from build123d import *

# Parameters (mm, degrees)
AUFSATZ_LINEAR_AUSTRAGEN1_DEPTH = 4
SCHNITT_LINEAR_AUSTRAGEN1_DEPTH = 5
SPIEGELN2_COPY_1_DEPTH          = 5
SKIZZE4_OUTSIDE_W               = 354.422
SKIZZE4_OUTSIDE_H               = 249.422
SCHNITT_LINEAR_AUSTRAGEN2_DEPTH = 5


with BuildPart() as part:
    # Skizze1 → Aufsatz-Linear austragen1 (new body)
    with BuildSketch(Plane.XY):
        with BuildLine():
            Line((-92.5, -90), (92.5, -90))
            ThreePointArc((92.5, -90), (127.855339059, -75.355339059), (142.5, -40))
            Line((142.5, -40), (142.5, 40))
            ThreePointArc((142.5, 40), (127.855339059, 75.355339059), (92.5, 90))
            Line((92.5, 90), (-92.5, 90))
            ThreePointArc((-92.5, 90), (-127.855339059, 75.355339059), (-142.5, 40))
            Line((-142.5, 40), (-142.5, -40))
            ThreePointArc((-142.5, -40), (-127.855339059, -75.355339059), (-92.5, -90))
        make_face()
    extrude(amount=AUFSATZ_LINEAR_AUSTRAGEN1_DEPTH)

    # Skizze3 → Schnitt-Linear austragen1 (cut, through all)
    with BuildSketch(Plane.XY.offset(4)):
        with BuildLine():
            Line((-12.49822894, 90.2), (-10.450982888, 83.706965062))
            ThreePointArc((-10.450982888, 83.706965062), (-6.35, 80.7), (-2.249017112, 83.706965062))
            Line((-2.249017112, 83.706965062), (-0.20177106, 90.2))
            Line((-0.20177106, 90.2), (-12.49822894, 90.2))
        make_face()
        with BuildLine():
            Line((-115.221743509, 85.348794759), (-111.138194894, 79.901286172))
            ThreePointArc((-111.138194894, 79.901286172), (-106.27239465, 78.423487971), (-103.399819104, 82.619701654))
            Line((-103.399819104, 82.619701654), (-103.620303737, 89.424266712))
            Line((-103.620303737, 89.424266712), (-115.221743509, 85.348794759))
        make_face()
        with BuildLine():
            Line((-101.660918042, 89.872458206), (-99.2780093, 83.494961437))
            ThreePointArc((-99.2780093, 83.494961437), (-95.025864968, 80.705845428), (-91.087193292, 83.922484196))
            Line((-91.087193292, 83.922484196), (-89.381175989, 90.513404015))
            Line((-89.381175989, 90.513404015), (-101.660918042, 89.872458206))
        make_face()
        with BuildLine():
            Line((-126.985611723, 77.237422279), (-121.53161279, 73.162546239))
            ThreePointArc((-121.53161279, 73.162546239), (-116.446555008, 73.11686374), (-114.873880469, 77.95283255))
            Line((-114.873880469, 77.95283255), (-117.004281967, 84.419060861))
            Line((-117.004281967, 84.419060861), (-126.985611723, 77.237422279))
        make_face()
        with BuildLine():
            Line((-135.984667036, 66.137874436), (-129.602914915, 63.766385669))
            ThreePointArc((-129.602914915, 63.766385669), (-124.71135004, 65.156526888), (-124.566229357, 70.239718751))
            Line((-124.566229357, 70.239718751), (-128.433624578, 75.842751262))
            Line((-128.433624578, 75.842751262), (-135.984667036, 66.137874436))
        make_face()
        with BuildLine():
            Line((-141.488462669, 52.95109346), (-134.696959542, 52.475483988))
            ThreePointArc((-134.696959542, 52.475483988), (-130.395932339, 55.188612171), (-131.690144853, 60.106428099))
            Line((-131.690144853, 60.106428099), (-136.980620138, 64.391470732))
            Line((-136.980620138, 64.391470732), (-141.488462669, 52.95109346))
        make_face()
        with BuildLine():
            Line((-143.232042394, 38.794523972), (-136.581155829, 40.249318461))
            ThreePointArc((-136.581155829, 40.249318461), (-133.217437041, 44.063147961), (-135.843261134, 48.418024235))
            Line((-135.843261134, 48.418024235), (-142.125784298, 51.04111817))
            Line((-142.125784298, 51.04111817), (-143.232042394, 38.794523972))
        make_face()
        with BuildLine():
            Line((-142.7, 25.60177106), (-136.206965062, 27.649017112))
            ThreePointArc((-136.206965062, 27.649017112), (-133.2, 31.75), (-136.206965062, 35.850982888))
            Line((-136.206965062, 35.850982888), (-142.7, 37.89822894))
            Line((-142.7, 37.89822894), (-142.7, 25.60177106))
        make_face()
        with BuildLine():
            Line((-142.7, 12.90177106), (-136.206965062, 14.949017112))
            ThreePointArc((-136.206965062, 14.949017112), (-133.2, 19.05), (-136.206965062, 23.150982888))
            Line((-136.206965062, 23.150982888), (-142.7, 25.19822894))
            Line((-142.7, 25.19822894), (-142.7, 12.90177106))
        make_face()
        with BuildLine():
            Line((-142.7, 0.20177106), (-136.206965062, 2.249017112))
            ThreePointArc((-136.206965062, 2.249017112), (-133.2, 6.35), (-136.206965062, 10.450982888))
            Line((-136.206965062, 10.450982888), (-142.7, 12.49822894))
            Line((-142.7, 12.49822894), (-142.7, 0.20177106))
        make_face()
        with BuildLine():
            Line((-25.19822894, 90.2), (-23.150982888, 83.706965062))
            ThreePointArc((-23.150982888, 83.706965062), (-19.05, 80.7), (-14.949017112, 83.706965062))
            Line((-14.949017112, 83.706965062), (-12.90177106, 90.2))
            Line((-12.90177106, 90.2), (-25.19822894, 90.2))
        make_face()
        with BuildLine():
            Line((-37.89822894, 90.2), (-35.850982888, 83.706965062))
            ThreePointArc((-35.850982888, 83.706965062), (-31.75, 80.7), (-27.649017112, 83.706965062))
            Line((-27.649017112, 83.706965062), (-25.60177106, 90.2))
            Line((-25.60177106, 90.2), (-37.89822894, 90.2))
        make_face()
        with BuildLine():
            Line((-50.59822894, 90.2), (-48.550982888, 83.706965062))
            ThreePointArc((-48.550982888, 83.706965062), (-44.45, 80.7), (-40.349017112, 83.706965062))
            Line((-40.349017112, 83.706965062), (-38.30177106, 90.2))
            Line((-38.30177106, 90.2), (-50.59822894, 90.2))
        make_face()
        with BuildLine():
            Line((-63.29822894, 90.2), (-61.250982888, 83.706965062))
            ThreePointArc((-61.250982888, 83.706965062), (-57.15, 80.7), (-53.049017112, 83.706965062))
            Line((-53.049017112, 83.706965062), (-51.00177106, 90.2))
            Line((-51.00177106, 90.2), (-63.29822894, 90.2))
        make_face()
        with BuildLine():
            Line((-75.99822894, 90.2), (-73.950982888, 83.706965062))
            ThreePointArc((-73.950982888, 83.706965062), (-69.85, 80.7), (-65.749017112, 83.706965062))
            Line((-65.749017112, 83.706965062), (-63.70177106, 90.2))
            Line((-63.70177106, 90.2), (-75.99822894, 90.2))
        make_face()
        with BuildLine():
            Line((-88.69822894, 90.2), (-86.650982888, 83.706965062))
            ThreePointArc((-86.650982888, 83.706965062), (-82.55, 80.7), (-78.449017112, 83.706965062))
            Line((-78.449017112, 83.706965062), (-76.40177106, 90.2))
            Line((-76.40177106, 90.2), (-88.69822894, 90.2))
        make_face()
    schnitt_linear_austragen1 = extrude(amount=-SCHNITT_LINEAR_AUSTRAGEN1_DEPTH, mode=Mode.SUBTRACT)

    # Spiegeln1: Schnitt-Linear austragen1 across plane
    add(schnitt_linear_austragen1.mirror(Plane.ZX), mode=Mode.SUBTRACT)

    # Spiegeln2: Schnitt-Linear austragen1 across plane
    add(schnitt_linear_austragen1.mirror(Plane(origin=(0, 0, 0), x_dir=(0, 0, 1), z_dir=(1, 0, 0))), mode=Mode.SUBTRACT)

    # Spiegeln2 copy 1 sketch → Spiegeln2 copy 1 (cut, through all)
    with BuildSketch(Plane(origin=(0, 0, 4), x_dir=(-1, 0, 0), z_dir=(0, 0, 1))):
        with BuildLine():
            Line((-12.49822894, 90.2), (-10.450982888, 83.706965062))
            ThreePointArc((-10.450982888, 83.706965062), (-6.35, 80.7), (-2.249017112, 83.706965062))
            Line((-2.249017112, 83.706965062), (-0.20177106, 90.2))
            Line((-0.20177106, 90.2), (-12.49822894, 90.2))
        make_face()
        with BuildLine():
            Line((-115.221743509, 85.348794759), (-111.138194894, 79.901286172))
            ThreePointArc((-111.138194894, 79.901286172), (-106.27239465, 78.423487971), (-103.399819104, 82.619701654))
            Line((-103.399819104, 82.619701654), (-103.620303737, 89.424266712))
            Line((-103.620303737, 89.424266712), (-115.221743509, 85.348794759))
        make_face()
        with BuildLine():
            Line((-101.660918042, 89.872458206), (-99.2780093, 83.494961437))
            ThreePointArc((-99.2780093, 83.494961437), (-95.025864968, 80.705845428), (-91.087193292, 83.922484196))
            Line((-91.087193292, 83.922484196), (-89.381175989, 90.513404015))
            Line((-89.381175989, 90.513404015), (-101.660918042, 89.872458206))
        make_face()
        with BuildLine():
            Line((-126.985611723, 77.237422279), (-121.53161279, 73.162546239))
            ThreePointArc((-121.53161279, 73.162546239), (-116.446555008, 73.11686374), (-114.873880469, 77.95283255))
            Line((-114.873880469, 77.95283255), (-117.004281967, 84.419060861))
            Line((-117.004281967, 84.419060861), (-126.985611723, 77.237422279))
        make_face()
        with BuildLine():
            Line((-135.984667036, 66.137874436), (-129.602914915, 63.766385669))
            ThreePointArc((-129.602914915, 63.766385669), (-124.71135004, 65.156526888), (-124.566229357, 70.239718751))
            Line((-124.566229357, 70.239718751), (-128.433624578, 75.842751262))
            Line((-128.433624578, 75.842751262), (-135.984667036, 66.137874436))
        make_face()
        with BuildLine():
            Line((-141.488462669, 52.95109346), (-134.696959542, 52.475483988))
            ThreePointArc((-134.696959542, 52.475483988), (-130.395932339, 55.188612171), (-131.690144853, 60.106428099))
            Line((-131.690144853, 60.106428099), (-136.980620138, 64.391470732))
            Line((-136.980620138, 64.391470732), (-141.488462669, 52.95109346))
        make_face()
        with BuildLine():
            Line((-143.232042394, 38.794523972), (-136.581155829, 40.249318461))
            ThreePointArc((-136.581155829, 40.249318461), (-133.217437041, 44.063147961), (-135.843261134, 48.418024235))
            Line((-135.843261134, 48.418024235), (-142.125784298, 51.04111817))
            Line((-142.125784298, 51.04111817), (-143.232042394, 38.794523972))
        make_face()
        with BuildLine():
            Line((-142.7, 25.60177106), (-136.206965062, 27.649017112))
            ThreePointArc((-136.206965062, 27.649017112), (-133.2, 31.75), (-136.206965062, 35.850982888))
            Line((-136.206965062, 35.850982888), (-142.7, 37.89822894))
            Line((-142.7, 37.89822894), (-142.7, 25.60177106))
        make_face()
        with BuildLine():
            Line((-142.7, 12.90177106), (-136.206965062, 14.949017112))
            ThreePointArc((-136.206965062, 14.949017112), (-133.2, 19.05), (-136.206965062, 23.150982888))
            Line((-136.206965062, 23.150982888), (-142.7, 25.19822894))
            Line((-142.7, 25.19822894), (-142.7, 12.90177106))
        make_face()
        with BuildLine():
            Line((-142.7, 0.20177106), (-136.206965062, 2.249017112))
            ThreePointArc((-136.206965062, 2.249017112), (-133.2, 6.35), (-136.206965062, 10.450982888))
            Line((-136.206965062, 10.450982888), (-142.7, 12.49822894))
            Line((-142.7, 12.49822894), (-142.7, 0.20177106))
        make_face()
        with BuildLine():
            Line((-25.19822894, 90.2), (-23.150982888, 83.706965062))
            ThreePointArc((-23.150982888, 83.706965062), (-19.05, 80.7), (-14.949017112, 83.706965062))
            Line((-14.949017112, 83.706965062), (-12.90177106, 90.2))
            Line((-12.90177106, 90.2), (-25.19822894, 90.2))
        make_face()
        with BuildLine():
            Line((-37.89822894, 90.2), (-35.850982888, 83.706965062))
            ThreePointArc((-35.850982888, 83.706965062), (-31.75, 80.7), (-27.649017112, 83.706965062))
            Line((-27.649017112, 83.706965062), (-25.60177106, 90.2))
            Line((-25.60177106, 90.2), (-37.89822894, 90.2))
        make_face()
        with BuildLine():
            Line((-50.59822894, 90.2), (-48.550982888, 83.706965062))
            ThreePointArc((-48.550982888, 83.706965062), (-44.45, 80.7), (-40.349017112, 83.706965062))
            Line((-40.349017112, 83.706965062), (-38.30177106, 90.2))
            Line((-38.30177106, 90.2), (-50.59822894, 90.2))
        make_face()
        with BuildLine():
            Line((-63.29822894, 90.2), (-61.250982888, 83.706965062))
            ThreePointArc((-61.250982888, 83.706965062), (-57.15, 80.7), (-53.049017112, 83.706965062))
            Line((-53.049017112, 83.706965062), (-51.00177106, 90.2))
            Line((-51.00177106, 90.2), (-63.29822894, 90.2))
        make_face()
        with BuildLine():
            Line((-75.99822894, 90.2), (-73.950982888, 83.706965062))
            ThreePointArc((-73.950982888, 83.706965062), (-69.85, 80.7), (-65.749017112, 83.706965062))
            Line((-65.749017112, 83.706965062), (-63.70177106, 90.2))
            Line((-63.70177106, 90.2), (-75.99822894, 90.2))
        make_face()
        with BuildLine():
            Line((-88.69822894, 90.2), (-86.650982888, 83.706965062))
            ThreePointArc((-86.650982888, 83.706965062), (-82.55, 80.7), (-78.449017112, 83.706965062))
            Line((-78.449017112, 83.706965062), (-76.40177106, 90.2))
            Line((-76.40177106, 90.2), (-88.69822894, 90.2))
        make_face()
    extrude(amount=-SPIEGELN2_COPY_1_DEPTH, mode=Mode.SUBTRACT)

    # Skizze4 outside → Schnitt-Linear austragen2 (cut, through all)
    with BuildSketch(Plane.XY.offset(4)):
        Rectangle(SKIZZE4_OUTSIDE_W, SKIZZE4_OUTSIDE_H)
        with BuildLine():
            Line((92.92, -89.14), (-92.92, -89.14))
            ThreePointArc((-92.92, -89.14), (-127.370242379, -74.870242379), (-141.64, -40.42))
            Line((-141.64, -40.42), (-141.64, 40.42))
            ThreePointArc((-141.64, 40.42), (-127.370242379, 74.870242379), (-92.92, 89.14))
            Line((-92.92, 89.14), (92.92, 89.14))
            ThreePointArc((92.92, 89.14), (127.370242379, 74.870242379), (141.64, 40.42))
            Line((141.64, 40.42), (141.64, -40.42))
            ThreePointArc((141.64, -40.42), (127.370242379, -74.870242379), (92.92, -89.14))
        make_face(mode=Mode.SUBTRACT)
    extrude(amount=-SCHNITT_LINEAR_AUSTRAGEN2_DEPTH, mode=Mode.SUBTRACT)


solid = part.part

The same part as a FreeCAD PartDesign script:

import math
import FreeCAD as App
import Part
import Sketcher

V = App.Vector
Q = App.Units.Quantity

doc = App.newDocument("Part")
body = doc.addObject("PartDesign::Body", "Body")

# Sketch on XY plane
sketch1 = doc.addObject("Sketcher::SketchObject", "Sketch")
body.addObject(sketch1)
sketch1.AttachmentSupport = (doc.XY_Plane, [""])
sketch1.MapMode = "FlatFace"
sketch1.addGeometry([
    Part.LineSegment(V(-92, -90, 0), V(92, -90, 0)),  # 0
    Part.ArcOfCircle(Part.Circle(V(92, -40, 0), V(0, 0, 1), 50), math.radians(-90), math.radians(0)),  # 1
    Part.LineSegment(V(142, -40, 0), V(142, 40, 0)),  # 2
    Part.ArcOfCircle(Part.Circle(V(92, 40, 0), V(0, 0, 1), 50), math.radians(0), math.radians(90)),  # 3
    Part.LineSegment(V(92, 90, 0), V(-92, 90, 0)),  # 4
    Part.ArcOfCircle(Part.Circle(V(-92, 40, 0), V(0, 0, 1), 50), math.radians(90), math.radians(180)),  # 5
    Part.LineSegment(V(-142, 40, 0), V(-142, -40, 0)),  # 6
    Part.ArcOfCircle(Part.Circle(V(-92, -40, 0), V(0, 0, 1), 50), math.radians(-180), math.radians(-90)),  # 7
], False)
sketch1.addConstraint([
    Sketcher.Constraint("Tangent", 0, 2, 1, 1),
    Sketcher.Constraint("Tangent", 1, 2, 2, 1),
    Sketcher.Constraint("Tangent", 2, 2, 3, 1),
    Sketcher.Constraint("Tangent", 3, 2, 4, 1),
    Sketcher.Constraint("Tangent", 4, 2, 5, 1),
    Sketcher.Constraint("Tangent", 5, 2, 6, 1),
    Sketcher.Constraint("Tangent", 6, 2, 7, 1),
    Sketcher.Constraint("Tangent", 7, 2, 0, 1),
    Sketcher.Constraint("Horizontal", 0),
    Sketcher.Constraint("Vertical", 2),
    Sketcher.Constraint("Horizontal", 4),
    Sketcher.Constraint("Vertical", 6),
    Sketcher.Constraint("Equal", 1, 3),
    Sketcher.Constraint("Equal", 3, 5),
    Sketcher.Constraint("Equal", 5, 7),
    Sketcher.Constraint("Symmetric", 1, 3, 5, 3, -1, 1),
    Sketcher.Constraint("Radius", 1, Q("50 mm")),
    Sketcher.Constraint("DistanceX", 0, 1, 0, 2, Q("185 mm")),
    Sketcher.Constraint("DistanceY", 2, 1, 2, 2, Q("80 mm")),
])
pad1 = doc.addObject("PartDesign::Pad", "Pad")
body.addObject(pad1)
pad1.Profile = sketch1
pad1.Length = 4

# Sketch on XY plane
sketch2 = doc.addObject("Sketcher::SketchObject", "Sketch001")
body.addObject(sketch2)
sketch2.AttachmentSupport = (doc.XY_Plane, [""])
sketch2.MapMode = "FlatFace"
sketch2.AttachmentOffset = App.Placement(V(0, 0, 4), App.Rotation())
sketch2.addGeometry([
    Part.LineSegment(V(-12.498229, 90.2, 0), V(-10.450983, 83.706965, 0)),  # 0
    Part.ArcOfCircle(Part.Circle(V(-6.35, 85, 0), V(0, 0, 1), 4.3), math.radians(-162.5), math.radians(-17.5)),  # 1
    Part.LineSegment(V(-2.249017, 83.706965, 0), V(-0.201771, 90.2, 0)),  # 2
    Part.LineSegment(V(-0.201771, 90.2, 0), V(-12.498229, 90.2, 0)),  # 3
    Part.LineSegment(V(-115.221744, 85.348795, 0), V(-111.138195, 79.901286, 0)),  # 4
    Part.ArcOfCircle(Part.Circle(V(-107.697564, 82.480444, 0), V(0, 0, 1), 4.3), math.radians(-143.144125), math.radians(1.855875)),  # 5
    Part.LineSegment(V(-103.399819, 82.619702, 0), V(-103.620304, 89.424267, 0)),  # 6
    Part.LineSegment(V(-103.620304, 89.424267, 0), V(-115.221744, 85.348795, 0)),  # 7
    Part.LineSegment(V(-101.660918, 89.872458, 0), V(-99.278009, 83.494961, 0)),  # 8
    Part.ArcOfCircle(Part.Circle(V(-95.25, 85, 0), V(0, 0, 1), 4.3), math.radians(-159.512136), math.radians(-14.512136)),  # 9
    Part.LineSegment(V(-91.087193, 83.922484, 0), V(-89.381176, 90.513404, 0)),  # 10
    Part.LineSegment(V(-89.381176, 90.513404, 0), V(-101.660918, 89.872458, 0)),  # 11
    Part.LineSegment(V(-126.985612, 77.237422, 0), V(-121.531613, 73.162546, 0)),  # 12
    Part.ArcOfCircle(Part.Circle(V(-118.957932, 76.607277, 0), V(0, 0, 1), 4.3), math.radians(-126.764713), math.radians(18.235287)),  # 13
    Part.LineSegment(V(-114.87388, 77.952833, 0), V(-117.004282, 84.419061, 0)),  # 14
    Part.LineSegment(V(-117.004282, 84.419061, 0), V(-126.985612, 77.237422, 0)),  # 15
    Part.LineSegment(V(-135.984667, 66.137874, 0), V(-129.602915, 63.766386, 0)),  # 16
    Part.ArcOfCircle(Part.Circle(V(-128.105089, 67.797083, 0), V(0, 0, 1), 4.3), math.radians(-110.3853), math.radians(34.6147)),  # 17
    Part.LineSegment(V(-124.566229, 70.239719, 0), V(-128.433625, 75.842751, 0)),  # 18
    Part.LineSegment(V(-128.433625, 75.842751, 0), V(-135.984667, 66.137874, 0)),  # 19
    Part.LineSegment(V(-141.488463, 52.951093, 0), V(-134.69696, 52.475484, 0)),  # 20
    Part.ArcOfCircle(Part.Circle(V(-134.396566, 56.764979, 0), V(0, 0, 1), 4.3), math.radians(-94.005888), math.radians(50.994112)),  # 21
    Part.LineSegment(V(-131.690145, 60.106428, 0), V(-136.98062, 64.391471, 0)),  # 22
    Part.LineSegment(V(-136.98062, 64.391471, 0), V(-141.488463, 52.951093, 0)),  # 23
    Part.LineSegment(V(-143.232042, 38.794524, 0), V(-136.581156, 40.249318, 0)),  # 24
    Part.ArcOfCircle(Part.Circle(V(-137.5, 44.45, 0), V(0, 0, 1), 4.3), math.radians(-77.661628), math.radians(67.338372)),  # 25
    Part.LineSegment(V(-135.843261, 48.418024, 0), V(-142.125784, 51.041118, 0)),  # 26
    Part.LineSegment(V(-142.125784, 51.041118, 0), V(-143.232042, 38.794524, 0)),  # 27
    Part.LineSegment(V(-142.7, 25.601771, 0), V(-136.206965, 27.649017, 0)),  # 28
    Part.ArcOfCircle(Part.Circle(V(-137.5, 31.75, 0), V(0, 0, 1), 4.3), math.radians(-72.5), math.radians(72.5)),  # 29
    Part.LineSegment(V(-136.206965, 35.850983, 0), V(-142.7, 37.898229, 0)),  # 30
    Part.LineSegment(V(-142.7, 37.898229, 0), V(-142.7, 25.601771, 0)),  # 31
    Part.LineSegment(V(-142.7, 12.901771, 0), V(-136.206965, 14.949017, 0)),  # 32
    Part.ArcOfCircle(Part.Circle(V(-137.5, 19.05, 0), V(0, 0, 1), 4.3), math.radians(-72.5), math.radians(72.5)),  # 33
    Part.LineSegment(V(-136.206965, 23.150983, 0), V(-142.7, 25.198229, 0)),  # 34
    Part.LineSegment(V(-142.7, 25.198229, 0), V(-142.7, 12.901771, 0)),  # 35
    Part.LineSegment(V(-142.7, 0.201771, 0), V(-136.206965, 2.249017, 0)),  # 36
    Part.ArcOfCircle(Part.Circle(V(-137.5, 6.35, 0), V(0, 0, 1), 4.3), math.radians(-72.5), math.radians(72.5)),  # 37
    Part.LineSegment(V(-136.206965, 10.450983, 0), V(-142.7, 12.498229, 0)),  # 38
    Part.LineSegment(V(-142.7, 12.498229, 0), V(-142.7, 0.201771, 0)),  # 39
    Part.LineSegment(V(-25.198229, 90.2, 0), V(-23.150983, 83.706965, 0)),  # 40
    Part.ArcOfCircle(Part.Circle(V(-19.05, 85, 0), V(0, 0, 1), 4.3), math.radians(-162.5), math.radians(-17.5)),  # 41
    Part.LineSegment(V(-14.949017, 83.706965, 0), V(-12.901771, 90.2, 0)),  # 42
    Part.LineSegment(V(-12.901771, 90.2, 0), V(-25.198229, 90.2, 0)),  # 43
    Part.LineSegment(V(-37.898229, 90.2, 0), V(-35.850983, 83.706965, 0)),  # 44
    Part.ArcOfCircle(Part.Circle(V(-31.75, 85, 0), V(0, 0, 1), 4.3), math.radians(-162.5), math.radians(-17.5)),  # 45
    Part.LineSegment(V(-27.649017, 83.706965, 0), V(-25.601771, 90.2, 0)),  # 46
    Part.LineSegment(V(-25.601771, 90.2, 0), V(-37.898229, 90.2, 0)),  # 47
    Part.LineSegment(V(-50.598229, 90.2, 0), V(-48.550983, 83.706965, 0)),  # 48
    Part.ArcOfCircle(Part.Circle(V(-44.45, 85, 0), V(0, 0, 1), 4.3), math.radians(-162.5), math.radians(-17.5)),  # 49
    Part.LineSegment(V(-40.349017, 83.706965, 0), V(-38.301771, 90.2, 0)),  # 50
    Part.LineSegment(V(-38.301771, 90.2, 0), V(-50.598229, 90.2, 0)),  # 51
    Part.LineSegment(V(-63.298229, 90.2, 0), V(-61.250983, 83.706965, 0)),  # 52
    Part.ArcOfCircle(Part.Circle(V(-57.15, 85, 0), V(0, 0, 1), 4.3), math.radians(-162.5), math.radians(-17.5)),  # 53
    Part.LineSegment(V(-53.049017, 83.706965, 0), V(-51.001771, 90.2, 0)),  # 54
    Part.LineSegment(V(-51.001771, 90.2, 0), V(-63.298229, 90.2, 0)),  # 55
    Part.LineSegment(V(-75.998229, 90.2, 0), V(-73.950983, 83.706965, 0)),  # 56
    Part.ArcOfCircle(Part.Circle(V(-69.85, 85, 0), V(0, 0, 1), 4.3), math.radians(-162.5), math.radians(-17.5)),  # 57
    Part.LineSegment(V(-65.749017, 83.706965, 0), V(-63.701771, 90.2, 0)),  # 58
    Part.LineSegment(V(-63.701771, 90.2, 0), V(-75.998229, 90.2, 0)),  # 59
    Part.LineSegment(V(-88.698229, 90.2, 0), V(-86.650983, 83.706965, 0)),  # 60
    Part.ArcOfCircle(Part.Circle(V(-82.55, 85, 0), V(0, 0, 1), 4.3), math.radians(-162.5), math.radians(-17.5)),  # 61
    Part.LineSegment(V(-78.449017, 83.706965, 0), V(-76.401771, 90.2, 0)),  # 62
    Part.LineSegment(V(-76.401771, 90.2, 0), V(-88.698229, 90.2, 0)),  # 63
], False)
sketch2.addConstraint([
    Sketcher.Constraint("Coincident", 0, 2, 1, 1),
    Sketcher.Constraint("Coincident", 1, 2, 2, 1),
    Sketcher.Constraint("Coincident", 2, 2, 3, 1),
    Sketcher.Constraint("Coincident", 3, 2, 0, 1),
    Sketcher.Constraint("Coincident", 4, 2, 5, 1),
    Sketcher.Constraint("Coincident", 5, 2, 6, 1),
    Sketcher.Constraint("Coincident", 6, 2, 7, 1),
    Sketcher.Constraint("Coincident", 7, 2, 4, 1),
    Sketcher.Constraint("Coincident", 8, 2, 9, 1),
    Sketcher.Constraint("Coincident", 9, 2, 10, 1),
    Sketcher.Constraint("Coincident", 10, 2, 11, 1),
    Sketcher.Constraint("Coincident", 11, 2, 8, 1),
    Sketcher.Constraint("Coincident", 12, 2, 13, 1),
    Sketcher.Constraint("Coincident", 13, 2, 14, 1),
    Sketcher.Constraint("Coincident", 14, 2, 15, 1),
    Sketcher.Constraint("Coincident", 15, 2, 12, 1),
    Sketcher.Constraint("Coincident", 16, 2, 17, 1),
    Sketcher.Constraint("Coincident", 17, 2, 18, 1),
    Sketcher.Constraint("Coincident", 18, 2, 19, 1),
    Sketcher.Constraint("Coincident", 19, 2, 16, 1),
    Sketcher.Constraint("Coincident", 20, 2, 21, 1),
    Sketcher.Constraint("Coincident", 21, 2, 22, 1),
    Sketcher.Constraint("Coincident", 22, 2, 23, 1),
    Sketcher.Constraint("Coincident", 23, 2, 20, 1),
    Sketcher.Constraint("Coincident", 24, 2, 25, 1),
    Sketcher.Constraint("Coincident", 25, 2, 26, 1),
    Sketcher.Constraint("Coincident", 26, 2, 27, 1),
    Sketcher.Constraint("Coincident", 27, 2, 24, 1),
    Sketcher.Constraint("Coincident", 28, 2, 29, 1),
    Sketcher.Constraint("Coincident", 29, 2, 30, 1),
    Sketcher.Constraint("Coincident", 30, 2, 31, 1),
    Sketcher.Constraint("Coincident", 31, 2, 28, 1),
    Sketcher.Constraint("Coincident", 32, 2, 33, 1),
    Sketcher.Constraint("Coincident", 33, 2, 34, 1),
    Sketcher.Constraint("Coincident", 34, 2, 35, 1),
    Sketcher.Constraint("Coincident", 35, 2, 32, 1),
    Sketcher.Constraint("Coincident", 36, 2, 37, 1),
    Sketcher.Constraint("Coincident", 37, 2, 38, 1),
    Sketcher.Constraint("Coincident", 38, 2, 39, 1),
    Sketcher.Constraint("Coincident", 39, 2, 36, 1),
    Sketcher.Constraint("Coincident", 40, 2, 41, 1),
    Sketcher.Constraint("Coincident", 41, 2, 42, 1),
    Sketcher.Constraint("Coincident", 42, 2, 43, 1),
    Sketcher.Constraint("Coincident", 43, 2, 40, 1),
    Sketcher.Constraint("Coincident", 44, 2, 45, 1),
    Sketcher.Constraint("Coincident", 45, 2, 46, 1),
    Sketcher.Constraint("Coincident", 46, 2, 47, 1),
    Sketcher.Constraint("Coincident", 47, 2, 44, 1),
    Sketcher.Constraint("Coincident", 48, 2, 49, 1),
    Sketcher.Constraint("Coincident", 49, 2, 50, 1),
    Sketcher.Constraint("Coincident", 50, 2, 51, 1),
    Sketcher.Constraint("Coincident", 51, 2, 48, 1),
    Sketcher.Constraint("Coincident", 52, 2, 53, 1),
    Sketcher.Constraint("Coincident", 53, 2, 54, 1),
    Sketcher.Constraint("Coincident", 54, 2, 55, 1),
    Sketcher.Constraint("Coincident", 55, 2, 52, 1),
    Sketcher.Constraint("Coincident", 56, 2, 57, 1),
    Sketcher.Constraint("Coincident", 57, 2, 58, 1),
    Sketcher.Constraint("Coincident", 58, 2, 59, 1),
    Sketcher.Constraint("Coincident", 59, 2, 56, 1),
    Sketcher.Constraint("Coincident", 60, 2, 61, 1),
    Sketcher.Constraint("Coincident", 61, 2, 62, 1),
    Sketcher.Constraint("Coincident", 62, 2, 63, 1),
    Sketcher.Constraint("Coincident", 63, 2, 60, 1),
    Sketcher.Constraint("Horizontal", 3),
    Sketcher.Constraint("Vertical", 31),
    Sketcher.Constraint("Vertical", 35),
    Sketcher.Constraint("Vertical", 39),
    Sketcher.Constraint("Horizontal", 43),
    Sketcher.Constraint("Horizontal", 47),
    Sketcher.Constraint("Horizontal", 51),
    Sketcher.Constraint("Horizontal", 55),
    Sketcher.Constraint("Horizontal", 59),
    Sketcher.Constraint("Horizontal", 63),
    Sketcher.Constraint("Radius", 1, Q("4.3 mm")),
    Sketcher.Constraint("Radius", 5, Q("4.3 mm")),
    Sketcher.Constraint("Radius", 9, Q("4.3 mm")),
    Sketcher.Constraint("Radius", 13, Q("4.3 mm")),
    Sketcher.Constraint("Radius", 17, Q("4.3 mm")),
    Sketcher.Constraint("Radius", 21, Q("4.3 mm")),
    Sketcher.Constraint("Radius", 25, Q("4.3 mm")),
    Sketcher.Constraint("Radius", 29, Q("4.3 mm")),
    Sketcher.Constraint("Radius", 33, Q("4.3 mm")),
    Sketcher.Constraint("Radius", 37, Q("4.3 mm")),
    Sketcher.Constraint("Radius", 41, Q("4.3 mm")),
    Sketcher.Constraint("Radius", 45, Q("4.3 mm")),
    Sketcher.Constraint("Radius", 49, Q("4.3 mm")),
    Sketcher.Constraint("Radius", 53, Q("4.3 mm")),
    Sketcher.Constraint("Radius", 57, Q("4.3 mm")),
    Sketcher.Constraint("Radius", 61, Q("4.3 mm")),
    Sketcher.Constraint("DistanceY", -1, 1, 1, 3, Q("85 mm")),
    Sketcher.Constraint("DistanceY", -1, 1, 9, 3, Q("85 mm")),
    Sketcher.Constraint("DistanceY", -1, 1, 41, 3, Q("85 mm")),
    Sketcher.Constraint("DistanceY", -1, 1, 45, 3, Q("85 mm")),
    Sketcher.Constraint("DistanceY", -1, 1, 49, 3, Q("85 mm")),
    Sketcher.Constraint("DistanceY", -1, 1, 53, 3, Q("85 mm")),
    Sketcher.Constraint("DistanceY", -1, 1, 57, 3, Q("85 mm")),
    Sketcher.Constraint("DistanceY", -1, 1, 61, 3, Q("85 mm")),
    Sketcher.Constraint("DistanceX", 25, 3, -1, 1, Q("137.5 mm")),
    Sketcher.Constraint("DistanceX", 29, 3, -1, 1, Q("137.5 mm")),
    Sketcher.Constraint("DistanceX", 33, 3, -1, 1, Q("137.5 mm")),
    Sketcher.Constraint("DistanceX", 37, 3, -1, 1, Q("137.5 mm")),
    Sketcher.Constraint("DistanceY", -1, 1, 2, 2, Q("90.2 mm")),
    Sketcher.Constraint("DistanceX", 30, 2, -1, 1, Q("142.7 mm")),
    Sketcher.Constraint("DistanceX", 34, 2, -1, 1, Q("142.7 mm")),
    Sketcher.Constraint("DistanceX", 38, 2, -1, 1, Q("142.7 mm")),
    Sketcher.Constraint("DistanceY", -1, 1, 42, 2, Q("90.2 mm")),
    Sketcher.Constraint("DistanceY", -1, 1, 46, 2, Q("90.2 mm")),
    Sketcher.Constraint("DistanceY", -1, 1, 50, 2, Q("90.2 mm")),
    Sketcher.Constraint("DistanceY", -1, 1, 54, 2, Q("90.2 mm")),
    Sketcher.Constraint("DistanceY", -1, 1, 58, 2, Q("90.2 mm")),
    Sketcher.Constraint("DistanceY", -1, 1, 62, 2, Q("90.2 mm")),
    Sketcher.Constraint("DistanceX", 1, 3, -1, 1, Q("6.35 mm")),
    Sketcher.Constraint("DistanceX", 9, 3, -1, 1, Q("95.25 mm")),
    Sketcher.Constraint("DistanceY", -1, 1, 25, 3, Q("44.45 mm")),
    Sketcher.Constraint("DistanceY", -1, 1, 29, 3, Q("31.75 mm")),
    Sketcher.Constraint("DistanceY", -1, 1, 33, 3, Q("19.05 mm")),
    Sketcher.Constraint("DistanceY", -1, 1, 37, 3, Q("6.35 mm")),
    Sketcher.Constraint("DistanceX", 41, 3, -1, 1, Q("19.05 mm")),
    Sketcher.Constraint("DistanceX", 45, 3, -1, 1, Q("31.75 mm")),
    Sketcher.Constraint("DistanceX", 49, 3, -1, 1, Q("44.45 mm")),
    Sketcher.Constraint("DistanceX", 53, 3, -1, 1, Q("57.15 mm")),
    Sketcher.Constraint("DistanceX", 57, 3, -1, 1, Q("69.85 mm")),
    Sketcher.Constraint("DistanceX", 61, 3, -1, 1, Q("82.55 mm")),
    Sketcher.Constraint("DistanceY", -1, 1, 5, 2, Q("82.619702 mm")),
    Sketcher.Constraint("DistanceX", 3, 2, 3, 1, Q("12.296458 mm")),
    Sketcher.Constraint("DistanceX", 43, 2, 43, 1, Q("12.296458 mm")),
    Sketcher.Constraint("DistanceX", 47, 2, 47, 1, Q("12.296458 mm")),
    Sketcher.Constraint("DistanceX", 51, 2, 51, 1, Q("12.296458 mm")),
    Sketcher.Constraint("DistanceX", 55, 2, 55, 1, Q("12.296458 mm")),
    Sketcher.Constraint("DistanceX", 59, 2, 59, 1, Q("12.296458 mm")),
    Sketcher.Constraint("DistanceX", 63, 2, 63, 1, Q("12.296458 mm")),
    Sketcher.Constraint("DistanceY", 31, 2, 31, 1, Q("12.296458 mm")),
    Sketcher.Constraint("DistanceY", 35, 2, 35, 1, Q("12.296458 mm")),
    Sketcher.Constraint("DistanceY", 39, 2, 39, 1, Q("12.296458 mm")),
    Sketcher.Constraint("DistanceX", 17, 3, -1, 1, Q("128.105089 mm")),
    Sketcher.Constraint("DistanceY", -1, 1, 21, 3, Q("56.764979 mm")),
    Sketcher.Constraint("DistanceX", 2, 2, -1, 1, Q("0.201771 mm")),
    Sketcher.Constraint("DistanceX", 5, 2, -1, 1, Q("103.399819 mm")),
    Sketcher.Constraint("DistanceX", 8, 2, -1, 1, Q("99.278009 mm")),
    Sketcher.Constraint("DistanceX", 11, 2, -1, 1, Q("101.660918 mm")),
    Sketcher.Constraint("DistanceY", -1, 1, 11, 2, Q("89.872458 mm")),
    Sketcher.Constraint("DistanceX", 13, 2, -1, 1, Q("114.87388 mm")),
    Sketcher.Constraint("DistanceX", 14, 2, -1, 1, Q("117.004282 mm")),
    Sketcher.Constraint("DistanceY", -1, 1, 14, 2, Q("84.419061 mm")),
    Sketcher.Constraint("DistanceX", 15, 2, -1, 1, Q("126.985612 mm")),
    Sketcher.Constraint("DistanceX", 17, 2, -1, 1, Q("124.566229 mm")),
    Sketcher.Constraint("DistanceY", -1, 1, 17, 2, Q("70.239719 mm")),
    Sketcher.Constraint("DistanceY", -1, 1, 18, 2, Q("75.842751 mm")),
    Sketcher.Constraint("DistanceX", 20, 2, -1, 1, Q("134.69696 mm")),
    Sketcher.Constraint("DistanceY", -1, 1, 21, 2, Q("60.106428 mm")),
    Sketcher.Constraint("DistanceX", 22, 2, -1, 1, Q("136.98062 mm")),
    Sketcher.Constraint("DistanceY", -1, 1, 22, 2, Q("64.391471 mm")),
    Sketcher.Constraint("DistanceY", -1, 1, 24, 2, Q("40.249318 mm")),
    Sketcher.Constraint("DistanceX", 25, 2, -1, 1, Q("135.843261 mm")),
    Sketcher.Constraint("DistanceY", -1, 1, 26, 2, Q("51.041118 mm")),
    Sketcher.Constraint("DistanceY", -1, 1, 30, 2, Q("37.898229 mm")),
    Sketcher.Constraint("DistanceY", -1, 1, 34, 2, Q("25.198229 mm")),
    Sketcher.Constraint("DistanceY", -1, 1, 38, 2, Q("12.498229 mm")),
    Sketcher.Constraint("DistanceX", 42, 2, -1, 1, Q("12.901771 mm")),
    Sketcher.Constraint("DistanceX", 46, 2, -1, 1, Q("25.601771 mm")),
    Sketcher.Constraint("DistanceX", 50, 2, -1, 1, Q("38.301771 mm")),
    Sketcher.Constraint("DistanceX", 54, 2, -1, 1, Q("51.001771 mm")),
    Sketcher.Constraint("DistanceX", 58, 2, -1, 1, Q("63.701771 mm")),
    Sketcher.Constraint("DistanceX", 62, 2, -1, 1, Q("76.401771 mm")),
    Sketcher.Constraint("Distance", 0, Q("6.808136 mm")),
    Sketcher.Constraint("Distance", 2, Q("6.808136 mm")),
    Sketcher.Constraint("Distance", 4, Q("6.808136 mm")),
    Sketcher.Constraint("Distance", 6, Q("6.808136 mm")),
    Sketcher.Constraint("Distance", 7, Q("12.296458 mm")),
    Sketcher.Constraint("Distance", 10, Q("6.808136 mm")),
    Sketcher.Constraint("Distance", 11, Q("12.296458 mm")),
    Sketcher.Constraint("Distance", 12, Q("6.808136 mm")),
    Sketcher.Constraint("Distance", 14, Q("6.808136 mm")),
    Sketcher.Constraint("Distance", 15, Q("12.296458 mm")),
    Sketcher.Constraint("Distance", 16, Q("6.808136 mm")),
    Sketcher.Constraint("Distance", 18, Q("6.808136 mm")),
    Sketcher.Constraint("Distance", 19, Q("12.296458 mm")),
    Sketcher.Constraint("Distance", 20, Q("6.808136 mm")),
    Sketcher.Constraint("Distance", 22, Q("6.808136 mm")),
    Sketcher.Constraint("Distance", 23, Q("12.296458 mm")),
    Sketcher.Constraint("Distance", 24, Q("6.808136 mm")),
    Sketcher.Constraint("Distance", 26, Q("6.808136 mm")),
    Sketcher.Constraint("Distance", 27, Q("12.296458 mm")),
    Sketcher.Constraint("Distance", 28, Q("6.808136 mm")),
    Sketcher.Constraint("Distance", 30, Q("6.808136 mm")),
    Sketcher.Constraint("Distance", 32, Q("6.808136 mm")),
    Sketcher.Constraint("Distance", 34, Q("6.808136 mm")),
    Sketcher.Constraint("Distance", 36, Q("6.808136 mm")),
    Sketcher.Constraint("Distance", 38, Q("6.808136 mm")),
    Sketcher.Constraint("Distance", 40, Q("6.808136 mm")),
    Sketcher.Constraint("Distance", 42, Q("6.808136 mm")),
    Sketcher.Constraint("Distance", 44, Q("6.808136 mm")),
    Sketcher.Constraint("Distance", 46, Q("6.808136 mm")),
    Sketcher.Constraint("Distance", 48, Q("6.808136 mm")),
    Sketcher.Constraint("Distance", 50, Q("6.808136 mm")),
    Sketcher.Constraint("Distance", 52, Q("6.808136 mm")),
    Sketcher.Constraint("Distance", 54, Q("6.808136 mm")),
    Sketcher.Constraint("Distance", 56, Q("6.808136 mm")),
    Sketcher.Constraint("Distance", 58, Q("6.808136 mm")),
    Sketcher.Constraint("Distance", 60, Q("6.808136 mm")),
    Sketcher.Constraint("Distance", 62, Q("6.808136 mm")),
    Sketcher.Constraint("DistanceX", 5, 3, -1, 1, Q("107.697564 mm")),
    Sketcher.Constraint("DistanceX", 13, 3, -1, 1, Q("118.957932 mm")),
    Sketcher.Constraint("DistanceX", 4, 2, -1, 1, Q("111.138195 mm")),
    Sketcher.Constraint("DistanceX", 6, 2, -1, 1, Q("103.620304 mm")),
    Sketcher.Constraint("DistanceX", 9, 2, -1, 1, Q("91.087193 mm")),
    Sketcher.Constraint("DistanceX", 16, 2, -1, 1, Q("129.602915 mm")),
])
pocket1 = doc.addObject("PartDesign::Pocket", "Pocket")
body.addObject(pocket1)
pocket1.Profile = sketch2
pocket1.Type = "ThroughAll"
doc.recompute()

mirrored = doc.addObject("PartDesign::Mirrored", "Mirrored")
body.addObject(mirrored)
mirrored.Originals = [pocket1]
mirrored.MirrorPlane = (doc.XZ_Plane, [""])
body.Tip = mirrored
doc.recompute()

mirrored2 = doc.addObject("PartDesign::Mirrored", "Mirrored001")
body.addObject(mirrored2)
mirrored2.Originals = [pocket1]
mirrored2.MirrorPlane = (doc.YZ_Plane, [""])
body.Tip = mirrored2

# Sketch on XY plane
sketch3 = doc.addObject("Sketcher::SketchObject", "Sketch002")
body.addObject(sketch3)
sketch3.AttachmentSupport = (doc.XY_Plane, [""])
sketch3.MapMode = "FlatFace"
sketch3.AttachmentOffset = App.Placement(V(0, 0, 4), App.Rotation())
sketch3.addGeometry([
    Part.LineSegment(V(12.498229, -90.2, 0), V(10.450983, -83.706965, 0)),  # 0
    Part.ArcOfCircle(Part.Circle(V(6.35, -85, 0), V(0, 0, 1), 4.3), math.radians(17.5), math.radians(162.5)),  # 1
    Part.LineSegment(V(2.249017, -83.706965, 0), V(0.201771, -90.2, 0)),  # 2
    Part.LineSegment(V(0.201771, -90.2, 0), V(12.498229, -90.2, 0)),  # 3
    Part.LineSegment(V(115.221744, -85.348795, 0), V(111.138195, -79.901286, 0)),  # 4
    Part.ArcOfCircle(Part.Circle(V(107.697564, -82.480444, 0), V(0, 0, 1), 4.3), math.radians(36.855875), math.radians(181.855875)),  # 5
    Part.LineSegment(V(103.399819, -82.619702, 0), V(103.620304, -89.424267, 0)),  # 6
    Part.LineSegment(V(103.620304, -89.424267, 0), V(115.221744, -85.348795, 0)),  # 7
    Part.LineSegment(V(101.660918, -89.872458, 0), V(99.278009, -83.494961, 0)),  # 8
    Part.ArcOfCircle(Part.Circle(V(95.25, -85, 0), V(0, 0, 1), 4.3), math.radians(20.487864), math.radians(165.487864)),  # 9
    Part.LineSegment(V(91.087193, -83.922484, 0), V(89.381176, -90.513404, 0)),  # 10
    Part.LineSegment(V(89.381176, -90.513404, 0), V(101.660918, -89.872458, 0)),  # 11
    Part.LineSegment(V(126.985612, -77.237422, 0), V(121.531613, -73.162546, 0)),  # 12
    Part.ArcOfCircle(Part.Circle(V(118.957932, -76.607277, 0), V(0, 0, 1), 4.3), math.radians(53.235287), math.radians(198.235287)),  # 13
    Part.LineSegment(V(114.87388, -77.952833, 0), V(117.004282, -84.419061, 0)),  # 14
    Part.LineSegment(V(117.004282, -84.419061, 0), V(126.985612, -77.237422, 0)),  # 15
    Part.LineSegment(V(135.984667, -66.137874, 0), V(129.602915, -63.766386, 0)),  # 16
    Part.ArcOfCircle(Part.Circle(V(128.105089, -67.797083, 0), V(0, 0, 1), 4.3), math.radians(69.6147), math.radians(214.6147)),  # 17
    Part.LineSegment(V(124.566229, -70.239719, 0), V(128.433625, -75.842751, 0)),  # 18
    Part.LineSegment(V(128.433625, -75.842751, 0), V(135.984667, -66.137874, 0)),  # 19
    Part.LineSegment(V(141.488463, -52.951093, 0), V(134.69696, -52.475484, 0)),  # 20
    Part.ArcOfCircle(Part.Circle(V(134.396566, -56.764979, 0), V(0, 0, 1), 4.3), math.radians(85.994112), math.radians(230.994112)),  # 21
    Part.LineSegment(V(131.690145, -60.106428, 0), V(136.98062, -64.391471, 0)),  # 22
    Part.LineSegment(V(136.98062, -64.391471, 0), V(141.488463, -52.951093, 0)),  # 23
    Part.LineSegment(V(143.232042, -38.794524, 0), V(136.581156, -40.249318, 0)),  # 24
    Part.ArcOfCircle(Part.Circle(V(137.5, -44.45, 0), V(0, 0, 1), 4.3), math.radians(102.338372), math.radians(247.338372)),  # 25
    Part.LineSegment(V(135.843261, -48.418024, 0), V(142.125784, -51.041118, 0)),  # 26
    Part.LineSegment(V(142.125784, -51.041118, 0), V(143.232042, -38.794524, 0)),  # 27
    Part.LineSegment(V(142.7, -25.601771, 0), V(136.206965, -27.649017, 0)),  # 28
    Part.ArcOfCircle(Part.Circle(V(137.5, -31.75, 0), V(0, 0, 1), 4.3), math.radians(107.5), math.radians(252.5)),  # 29
    Part.LineSegment(V(136.206965, -35.850983, 0), V(142.7, -37.898229, 0)),  # 30
    Part.LineSegment(V(142.7, -37.898229, 0), V(142.7, -25.601771, 0)),  # 31
    Part.LineSegment(V(142.7, -12.901771, 0), V(136.206965, -14.949017, 0)),  # 32
    Part.ArcOfCircle(Part.Circle(V(137.5, -19.05, 0), V(0, 0, 1), 4.3), math.radians(107.5), math.radians(252.5)),  # 33
    Part.LineSegment(V(136.206965, -23.150983, 0), V(142.7, -25.198229, 0)),  # 34
    Part.LineSegment(V(142.7, -25.198229, 0), V(142.7, -12.901771, 0)),  # 35
    Part.LineSegment(V(142.7, -0.201771, 0), V(136.206965, -2.249017, 0)),  # 36
    Part.ArcOfCircle(Part.Circle(V(137.5, -6.35, 0), V(0, 0, 1), 4.3), math.radians(107.5), math.radians(252.5)),  # 37
    Part.LineSegment(V(136.206965, -10.450983, 0), V(142.7, -12.498229, 0)),  # 38
    Part.LineSegment(V(142.7, -12.498229, 0), V(142.7, -0.201771, 0)),  # 39
    Part.LineSegment(V(25.198229, -90.2, 0), V(23.150983, -83.706965, 0)),  # 40
    Part.ArcOfCircle(Part.Circle(V(19.05, -85, 0), V(0, 0, 1), 4.3), math.radians(17.5), math.radians(162.5)),  # 41
    Part.LineSegment(V(14.949017, -83.706965, 0), V(12.901771, -90.2, 0)),  # 42
    Part.LineSegment(V(12.901771, -90.2, 0), V(25.198229, -90.2, 0)),  # 43
    Part.LineSegment(V(37.898229, -90.2, 0), V(35.850983, -83.706965, 0)),  # 44
    Part.ArcOfCircle(Part.Circle(V(31.75, -85, 0), V(0, 0, 1), 4.3), math.radians(17.5), math.radians(162.5)),  # 45
    Part.LineSegment(V(27.649017, -83.706965, 0), V(25.601771, -90.2, 0)),  # 46
    Part.LineSegment(V(25.601771, -90.2, 0), V(37.898229, -90.2, 0)),  # 47
    Part.LineSegment(V(50.598229, -90.2, 0), V(48.550983, -83.706965, 0)),  # 48
    Part.ArcOfCircle(Part.Circle(V(44.45, -85, 0), V(0, 0, 1), 4.3), math.radians(17.5), math.radians(162.5)),  # 49
    Part.LineSegment(V(40.349017, -83.706965, 0), V(38.301771, -90.2, 0)),  # 50
    Part.LineSegment(V(38.301771, -90.2, 0), V(50.598229, -90.2, 0)),  # 51
    Part.LineSegment(V(63.298229, -90.2, 0), V(61.250983, -83.706965, 0)),  # 52
    Part.ArcOfCircle(Part.Circle(V(57.15, -85, 0), V(0, 0, 1), 4.3), math.radians(17.5), math.radians(162.5)),  # 53
    Part.LineSegment(V(53.049017, -83.706965, 0), V(51.001771, -90.2, 0)),  # 54
    Part.LineSegment(V(51.001771, -90.2, 0), V(63.298229, -90.2, 0)),  # 55
    Part.LineSegment(V(75.998229, -90.2, 0), V(73.950983, -83.706965, 0)),  # 56
    Part.ArcOfCircle(Part.Circle(V(69.85, -85, 0), V(0, 0, 1), 4.3), math.radians(17.5), math.radians(162.5)),  # 57
    Part.LineSegment(V(65.749017, -83.706965, 0), V(63.701771, -90.2, 0)),  # 58
    Part.LineSegment(V(63.701771, -90.2, 0), V(75.998229, -90.2, 0)),  # 59
    Part.LineSegment(V(88.698229, -90.2, 0), V(86.650983, -83.706965, 0)),  # 60
    Part.ArcOfCircle(Part.Circle(V(82.55, -85, 0), V(0, 0, 1), 4.3), math.radians(17.5), math.radians(162.5)),  # 61
    Part.LineSegment(V(78.449017, -83.706965, 0), V(76.401771, -90.2, 0)),  # 62
    Part.LineSegment(V(76.401771, -90.2, 0), V(88.698229, -90.2, 0)),  # 63
], False)
sketch3.addConstraint([
    Sketcher.Constraint("Coincident", 0, 2, 1, 1),
    Sketcher.Constraint("Coincident", 1, 2, 2, 1),
    Sketcher.Constraint("Coincident", 2, 2, 3, 1),
    Sketcher.Constraint("Coincident", 3, 2, 0, 1),
    Sketcher.Constraint("Coincident", 4, 2, 5, 1),
    Sketcher.Constraint("Coincident", 5, 2, 6, 1),
    Sketcher.Constraint("Coincident", 6, 2, 7, 1),
    Sketcher.Constraint("Coincident", 7, 2, 4, 1),
    Sketcher.Constraint("Coincident", 8, 2, 9, 1),
    Sketcher.Constraint("Coincident", 9, 2, 10, 1),
    Sketcher.Constraint("Coincident", 10, 2, 11, 1),
    Sketcher.Constraint("Coincident", 11, 2, 8, 1),
    Sketcher.Constraint("Coincident", 12, 2, 13, 1),
    Sketcher.Constraint("Coincident", 13, 2, 14, 1),
    Sketcher.Constraint("Coincident", 14, 2, 15, 1),
    Sketcher.Constraint("Coincident", 15, 2, 12, 1),
    Sketcher.Constraint("Coincident", 16, 2, 17, 1),
    Sketcher.Constraint("Coincident", 17, 2, 18, 1),
    Sketcher.Constraint("Coincident", 18, 2, 19, 1),
    Sketcher.Constraint("Coincident", 19, 2, 16, 1),
    Sketcher.Constraint("Coincident", 20, 2, 21, 1),
    Sketcher.Constraint("Coincident", 21, 2, 22, 1),
    Sketcher.Constraint("Coincident", 22, 2, 23, 1),
    Sketcher.Constraint("Coincident", 23, 2, 20, 1),
    Sketcher.Constraint("Coincident", 24, 2, 25, 1),
    Sketcher.Constraint("Coincident", 25, 2, 26, 1),
    Sketcher.Constraint("Coincident", 26, 2, 27, 1),
    Sketcher.Constraint("Coincident", 27, 2, 24, 1),
    Sketcher.Constraint("Coincident", 28, 2, 29, 1),
    Sketcher.Constraint("Coincident", 29, 2, 30, 1),
    Sketcher.Constraint("Coincident", 30, 2, 31, 1),
    Sketcher.Constraint("Coincident", 31, 2, 28, 1),
    Sketcher.Constraint("Coincident", 32, 2, 33, 1),
    Sketcher.Constraint("Coincident", 33, 2, 34, 1),
    Sketcher.Constraint("Coincident", 34, 2, 35, 1),
    Sketcher.Constraint("Coincident", 35, 2, 32, 1),
    Sketcher.Constraint("Coincident", 36, 2, 37, 1),
    Sketcher.Constraint("Coincident", 37, 2, 38, 1),
    Sketcher.Constraint("Coincident", 38, 2, 39, 1),
    Sketcher.Constraint("Coincident", 39, 2, 36, 1),
    Sketcher.Constraint("Coincident", 40, 2, 41, 1),
    Sketcher.Constraint("Coincident", 41, 2, 42, 1),
    Sketcher.Constraint("Coincident", 42, 2, 43, 1),
    Sketcher.Constraint("Coincident", 43, 2, 40, 1),
    Sketcher.Constraint("Coincident", 44, 2, 45, 1),
    Sketcher.Constraint("Coincident", 45, 2, 46, 1),
    Sketcher.Constraint("Coincident", 46, 2, 47, 1),
    Sketcher.Constraint("Coincident", 47, 2, 44, 1),
    Sketcher.Constraint("Coincident", 48, 2, 49, 1),
    Sketcher.Constraint("Coincident", 49, 2, 50, 1),
    Sketcher.Constraint("Coincident", 50, 2, 51, 1),
    Sketcher.Constraint("Coincident", 51, 2, 48, 1),
    Sketcher.Constraint("Coincident", 52, 2, 53, 1),
    Sketcher.Constraint("Coincident", 53, 2, 54, 1),
    Sketcher.Constraint("Coincident", 54, 2, 55, 1),
    Sketcher.Constraint("Coincident", 55, 2, 52, 1),
    Sketcher.Constraint("Coincident", 56, 2, 57, 1),
    Sketcher.Constraint("Coincident", 57, 2, 58, 1),
    Sketcher.Constraint("Coincident", 58, 2, 59, 1),
    Sketcher.Constraint("Coincident", 59, 2, 56, 1),
    Sketcher.Constraint("Coincident", 60, 2, 61, 1),
    Sketcher.Constraint("Coincident", 61, 2, 62, 1),
    Sketcher.Constraint("Coincident", 62, 2, 63, 1),
    Sketcher.Constraint("Coincident", 63, 2, 60, 1),
    Sketcher.Constraint("Horizontal", 3),
    Sketcher.Constraint("Vertical", 31),
    Sketcher.Constraint("Vertical", 35),
    Sketcher.Constraint("Vertical", 39),
    Sketcher.Constraint("Horizontal", 43),
    Sketcher.Constraint("Horizontal", 47),
    Sketcher.Constraint("Horizontal", 51),
    Sketcher.Constraint("Horizontal", 55),
    Sketcher.Constraint("Horizontal", 59),
    Sketcher.Constraint("Horizontal", 63),
    Sketcher.Constraint("Radius", 1, Q("4.3 mm")),
    Sketcher.Constraint("Radius", 5, Q("4.3 mm")),
    Sketcher.Constraint("Radius", 9, Q("4.3 mm")),
    Sketcher.Constraint("Radius", 13, Q("4.3 mm")),
    Sketcher.Constraint("Radius", 17, Q("4.3 mm")),
    Sketcher.Constraint("Radius", 21, Q("4.3 mm")),
    Sketcher.Constraint("Radius", 25, Q("4.3 mm")),
    Sketcher.Constraint("Radius", 29, Q("4.3 mm")),
    Sketcher.Constraint("Radius", 33, Q("4.3 mm")),
    Sketcher.Constraint("Radius", 37, Q("4.3 mm")),
    Sketcher.Constraint("Radius", 41, Q("4.3 mm")),
    Sketcher.Constraint("Radius", 45, Q("4.3 mm")),
    Sketcher.Constraint("Radius", 49, Q("4.3 mm")),
    Sketcher.Constraint("Radius", 53, Q("4.3 mm")),
    Sketcher.Constraint("Radius", 57, Q("4.3 mm")),
    Sketcher.Constraint("Radius", 61, Q("4.3 mm")),
    Sketcher.Constraint("DistanceY", 1, 3, -1, 1, Q("85 mm")),
    Sketcher.Constraint("DistanceY", 9, 3, -1, 1, Q("85 mm")),
    Sketcher.Constraint("DistanceY", 41, 3, -1, 1, Q("85 mm")),
    Sketcher.Constraint("DistanceY", 45, 3, -1, 1, Q("85 mm")),
    Sketcher.Constraint("DistanceY", 49, 3, -1, 1, Q("85 mm")),
    Sketcher.Constraint("DistanceY", 53, 3, -1, 1, Q("85 mm")),
    Sketcher.Constraint("DistanceY", 57, 3, -1, 1, Q("85 mm")),
    Sketcher.Constraint("DistanceY", 61, 3, -1, 1, Q("85 mm")),
    Sketcher.Constraint("DistanceX", -1, 1, 25, 3, Q("137.5 mm")),
    Sketcher.Constraint("DistanceX", -1, 1, 29, 3, Q("137.5 mm")),
    Sketcher.Constraint("DistanceX", -1, 1, 33, 3, Q("137.5 mm")),
    Sketcher.Constraint("DistanceX", -1, 1, 37, 3, Q("137.5 mm")),
    Sketcher.Constraint("DistanceY", 2, 2, -1, 1, Q("90.2 mm")),
    Sketcher.Constraint("DistanceX", -1, 1, 30, 2, Q("142.7 mm")),
    Sketcher.Constraint("DistanceX", -1, 1, 34, 2, Q("142.7 mm")),
    Sketcher.Constraint("DistanceX", -1, 1, 38, 2, Q("142.7 mm")),
    Sketcher.Constraint("DistanceY", 42, 2, -1, 1, Q("90.2 mm")),
    Sketcher.Constraint("DistanceY", 46, 2, -1, 1, Q("90.2 mm")),
    Sketcher.Constraint("DistanceY", 50, 2, -1, 1, Q("90.2 mm")),
    Sketcher.Constraint("DistanceY", 54, 2, -1, 1, Q("90.2 mm")),
    Sketcher.Constraint("DistanceY", 58, 2, -1, 1, Q("90.2 mm")),
    Sketcher.Constraint("DistanceY", 62, 2, -1, 1, Q("90.2 mm")),
    Sketcher.Constraint("DistanceX", -1, 1, 1, 3, Q("6.35 mm")),
    Sketcher.Constraint("DistanceX", -1, 1, 9, 3, Q("95.25 mm")),
    Sketcher.Constraint("DistanceY", 25, 3, -1, 1, Q("44.45 mm")),
    Sketcher.Constraint("DistanceY", 29, 3, -1, 1, Q("31.75 mm")),
    Sketcher.Constraint("DistanceY", 33, 3, -1, 1, Q("19.05 mm")),
    Sketcher.Constraint("DistanceY", 37, 3, -1, 1, Q("6.35 mm")),
    Sketcher.Constraint("DistanceX", -1, 1, 41, 3, Q("19.05 mm")),
    Sketcher.Constraint("DistanceX", -1, 1, 45, 3, Q("31.75 mm")),
    Sketcher.Constraint("DistanceX", -1, 1, 49, 3, Q("44.45 mm")),
    Sketcher.Constraint("DistanceX", -1, 1, 53, 3, Q("57.15 mm")),
    Sketcher.Constraint("DistanceX", -1, 1, 57, 3, Q("69.85 mm")),
    Sketcher.Constraint("DistanceX", -1, 1, 61, 3, Q("82.55 mm")),
    Sketcher.Constraint("DistanceY", 5, 2, -1, 1, Q("82.619702 mm")),
    Sketcher.Constraint("DistanceX", 3, 1, 3, 2, Q("12.296458 mm")),
    Sketcher.Constraint("DistanceX", 43, 1, 43, 2, Q("12.296458 mm")),
    Sketcher.Constraint("DistanceX", 47, 1, 47, 2, Q("12.296458 mm")),
    Sketcher.Constraint("DistanceX", 51, 1, 51, 2, Q("12.296458 mm")),
    Sketcher.Constraint("DistanceX", 55, 1, 55, 2, Q("12.296458 mm")),
    Sketcher.Constraint("DistanceX", 59, 1, 59, 2, Q("12.296458 mm")),
    Sketcher.Constraint("DistanceX", 63, 1, 63, 2, Q("12.296458 mm")),
    Sketcher.Constraint("DistanceY", 31, 1, 31, 2, Q("12.296458 mm")),
    Sketcher.Constraint("DistanceY", 35, 1, 35, 2, Q("12.296458 mm")),
    Sketcher.Constraint("DistanceY", 39, 1, 39, 2, Q("12.296458 mm")),
    Sketcher.Constraint("DistanceX", -1, 1, 17, 3, Q("128.105089 mm")),
    Sketcher.Constraint("DistanceY", 21, 3, -1, 1, Q("56.764979 mm")),
    Sketcher.Constraint("DistanceX", -1, 1, 2, 2, Q("0.201771 mm")),
    Sketcher.Constraint("DistanceX", -1, 1, 5, 2, Q("103.399819 mm")),
    Sketcher.Constraint("DistanceX", -1, 1, 8, 2, Q("99.278009 mm")),
    Sketcher.Constraint("DistanceX", -1, 1, 11, 2, Q("101.660918 mm")),
    Sketcher.Constraint("DistanceY", 11, 2, -1, 1, Q("89.872458 mm")),
    Sketcher.Constraint("DistanceX", -1, 1, 13, 2, Q("114.87388 mm")),
    Sketcher.Constraint("DistanceX", -1, 1, 14, 2, Q("117.004282 mm")),
    Sketcher.Constraint("DistanceY", 14, 2, -1, 1, Q("84.419061 mm")),
    Sketcher.Constraint("DistanceX", -1, 1, 15, 2, Q("126.985612 mm")),
    Sketcher.Constraint("DistanceX", -1, 1, 17, 2, Q("124.566229 mm")),
    Sketcher.Constraint("DistanceY", 17, 2, -1, 1, Q("70.239719 mm")),
    Sketcher.Constraint("DistanceY", 18, 2, -1, 1, Q("75.842751 mm")),
    Sketcher.Constraint("DistanceX", -1, 1, 20, 2, Q("134.69696 mm")),
    Sketcher.Constraint("DistanceY", 21, 2, -1, 1, Q("60.106428 mm")),
    Sketcher.Constraint("DistanceX", -1, 1, 22, 2, Q("136.98062 mm")),
    Sketcher.Constraint("DistanceY", 22, 2, -1, 1, Q("64.391471 mm")),
    Sketcher.Constraint("DistanceY", 24, 2, -1, 1, Q("40.249318 mm")),
    Sketcher.Constraint("DistanceX", -1, 1, 25, 2, Q("135.843261 mm")),
    Sketcher.Constraint("DistanceY", 26, 2, -1, 1, Q("51.041118 mm")),
    Sketcher.Constraint("DistanceY", 30, 2, -1, 1, Q("37.898229 mm")),
    Sketcher.Constraint("DistanceY", 34, 2, -1, 1, Q("25.198229 mm")),
    Sketcher.Constraint("DistanceY", 38, 2, -1, 1, Q("12.498229 mm")),
    Sketcher.Constraint("DistanceX", -1, 1, 42, 2, Q("12.901771 mm")),
    Sketcher.Constraint("DistanceX", -1, 1, 46, 2, Q("25.601771 mm")),
    Sketcher.Constraint("DistanceX", -1, 1, 50, 2, Q("38.301771 mm")),
    Sketcher.Constraint("DistanceX", -1, 1, 54, 2, Q("51.001771 mm")),
    Sketcher.Constraint("DistanceX", -1, 1, 58, 2, Q("63.701771 mm")),
    Sketcher.Constraint("DistanceX", -1, 1, 62, 2, Q("76.401771 mm")),
    Sketcher.Constraint("Distance", 0, Q("6.808136 mm")),
    Sketcher.Constraint("Distance", 2, Q("6.808136 mm")),
    Sketcher.Constraint("Distance", 4, Q("6.808136 mm")),
    Sketcher.Constraint("Distance", 6, Q("6.808136 mm")),
    Sketcher.Constraint("Distance", 7, Q("12.296458 mm")),
    Sketcher.Constraint("Distance", 10, Q("6.808136 mm")),
    Sketcher.Constraint("Distance", 11, Q("12.296458 mm")),
    Sketcher.Constraint("Distance", 12, Q("6.808136 mm")),
    Sketcher.Constraint("Distance", 14, Q("6.808136 mm")),
    Sketcher.Constraint("Distance", 15, Q("12.296458 mm")),
    Sketcher.Constraint("Distance", 16, Q("6.808136 mm")),
    Sketcher.Constraint("Distance", 18, Q("6.808136 mm")),
    Sketcher.Constraint("Distance", 19, Q("12.296458 mm")),
    Sketcher.Constraint("Distance", 20, Q("6.808136 mm")),
    Sketcher.Constraint("Distance", 22, Q("6.808136 mm")),
    Sketcher.Constraint("Distance", 23, Q("12.296458 mm")),
    Sketcher.Constraint("Distance", 24, Q("6.808136 mm")),
    Sketcher.Constraint("Distance", 26, Q("6.808136 mm")),
    Sketcher.Constraint("Distance", 27, Q("12.296458 mm")),
    Sketcher.Constraint("Distance", 28, Q("6.808136 mm")),
    Sketcher.Constraint("Distance", 30, Q("6.808136 mm")),
    Sketcher.Constraint("Distance", 32, Q("6.808136 mm")),
    Sketcher.Constraint("Distance", 34, Q("6.808136 mm")),
    Sketcher.Constraint("Distance", 36, Q("6.808136 mm")),
    Sketcher.Constraint("Distance", 38, Q("6.808136 mm")),
    Sketcher.Constraint("Distance", 40, Q("6.808136 mm")),
    Sketcher.Constraint("Distance", 42, Q("6.808136 mm")),
    Sketcher.Constraint("Distance", 44, Q("6.808136 mm")),
    Sketcher.Constraint("Distance", 46, Q("6.808136 mm")),
    Sketcher.Constraint("Distance", 48, Q("6.808136 mm")),
    Sketcher.Constraint("Distance", 50, Q("6.808136 mm")),
    Sketcher.Constraint("Distance", 52, Q("6.808136 mm")),
    Sketcher.Constraint("Distance", 54, Q("6.808136 mm")),
    Sketcher.Constraint("Distance", 56, Q("6.808136 mm")),
    Sketcher.Constraint("Distance", 58, Q("6.808136 mm")),
    Sketcher.Constraint("Distance", 60, Q("6.808136 mm")),
    Sketcher.Constraint("Distance", 62, Q("6.808136 mm")),
    Sketcher.Constraint("DistanceX", -1, 1, 5, 3, Q("107.697564 mm")),
    Sketcher.Constraint("DistanceX", -1, 1, 13, 3, Q("118.957932 mm")),
    Sketcher.Constraint("DistanceX", -1, 1, 4, 2, Q("111.138195 mm")),
    Sketcher.Constraint("DistanceX", -1, 1, 6, 2, Q("103.620304 mm")),
    Sketcher.Constraint("DistanceX", -1, 1, 9, 2, Q("91.087193 mm")),
    Sketcher.Constraint("DistanceX", -1, 1, 16, 2, Q("129.602915 mm")),
])
pocket2 = doc.addObject("PartDesign::Pocket", "Pocket001")
body.addObject(pocket2)
pocket2.Profile = sketch3
pocket2.Type = "ThroughAll"

# Sketch on XY plane
sketch4 = doc.addObject("Sketcher::SketchObject", "Sketch003")
body.addObject(sketch4)
sketch4.AttachmentSupport = (doc.XY_Plane, [""])
sketch4.MapMode = "FlatFace"
sketch4.AttachmentOffset = App.Placement(V(0, 0, 4), App.Rotation())
sketch4.addGeometry([
    Part.LineSegment(V(-177, 125, 0), V(-177, -125, 0)),  # 0
    Part.LineSegment(V(-177, -125, 0), V(177, -125, 0)),  # 1
    Part.LineSegment(V(177, -125, 0), V(177, 125, 0)),  # 2
    Part.LineSegment(V(177, 125, 0), V(-177, 125, 0)),  # 3
    Part.ArcOfCircle(Part.Circle(V(93, -40, 0), V(0, 0, 1), 49), math.radians(-90), math.radians(0)),  # 4
    Part.LineSegment(V(93, -89, 0), V(-93, -89, 0)),  # 5
    Part.ArcOfCircle(Part.Circle(V(-93, -40, 0), V(0, 0, 1), 49), math.radians(-180), math.radians(-90)),  # 6
    Part.LineSegment(V(-142, -40, 0), V(-142, 40, 0)),  # 7
    Part.ArcOfCircle(Part.Circle(V(-93, 40, 0), V(0, 0, 1), 49), math.radians(90), math.radians(180)),  # 8
    Part.LineSegment(V(-93, 89, 0), V(93, 89, 0)),  # 9
    Part.ArcOfCircle(Part.Circle(V(93, 40, 0), V(0, 0, 1), 49), math.radians(0), math.radians(90)),  # 10
    Part.LineSegment(V(142, 40, 0), V(142, -40, 0)),  # 11
], False)
sketch4.addConstraint([
    Sketcher.Constraint("Coincident", 0, 2, 1, 1),
    Sketcher.Constraint("Coincident", 1, 2, 2, 1),
    Sketcher.Constraint("Coincident", 2, 2, 3, 1),
    Sketcher.Constraint("Coincident", 3, 2, 0, 1),
    Sketcher.Constraint("Tangent", 4, 1, 5, 1),
    Sketcher.Constraint("Tangent", 5, 2, 6, 2),
    Sketcher.Constraint("Tangent", 6, 1, 7, 1),
    Sketcher.Constraint("Tangent", 7, 2, 8, 2),
    Sketcher.Constraint("Tangent", 8, 1, 9, 1),
    Sketcher.Constraint("Tangent", 9, 2, 10, 2),
    Sketcher.Constraint("Tangent", 10, 1, 11, 1),
    Sketcher.Constraint("Tangent", 11, 2, 4, 2),
    Sketcher.Constraint("Vertical", 0),
    Sketcher.Constraint("Horizontal", 1),
    Sketcher.Constraint("Vertical", 2),
    Sketcher.Constraint("Horizontal", 3),
    Sketcher.Constraint("Horizontal", 5),
    Sketcher.Constraint("Vertical", 7),
    Sketcher.Constraint("Horizontal", 9),
    Sketcher.Constraint("Vertical", 11),
    Sketcher.Constraint("Equal", 4, 6),
    Sketcher.Constraint("Equal", 6, 8),
    Sketcher.Constraint("Equal", 8, 10),
    Sketcher.Constraint("Symmetric", 4, 3, 8, 3, -1, 1),
    Sketcher.Constraint("Symmetric", 0, 2, 2, 2, -1, 1),
    Sketcher.Constraint("Radius", 4, Q("48.72 mm")),
    Sketcher.Constraint("DistanceX", 5, 2, 5, 1, Q("185.84 mm")),
    Sketcher.Constraint("DistanceY", 7, 1, 7, 2, Q("80.84 mm")),
    Sketcher.Constraint("DistanceX", 1, 1, 1, 2, Q("354.422 mm")),
    Sketcher.Constraint("DistanceY", 0, 2, 0, 1, Q("249.422 mm")),
])
pocket3 = doc.addObject("PartDesign::Pocket", "Pocket002")
body.addObject(pocket3)
pocket3.Profile = sketch4
pocket3.Type = "ThroughAll"

doc.recompute()
